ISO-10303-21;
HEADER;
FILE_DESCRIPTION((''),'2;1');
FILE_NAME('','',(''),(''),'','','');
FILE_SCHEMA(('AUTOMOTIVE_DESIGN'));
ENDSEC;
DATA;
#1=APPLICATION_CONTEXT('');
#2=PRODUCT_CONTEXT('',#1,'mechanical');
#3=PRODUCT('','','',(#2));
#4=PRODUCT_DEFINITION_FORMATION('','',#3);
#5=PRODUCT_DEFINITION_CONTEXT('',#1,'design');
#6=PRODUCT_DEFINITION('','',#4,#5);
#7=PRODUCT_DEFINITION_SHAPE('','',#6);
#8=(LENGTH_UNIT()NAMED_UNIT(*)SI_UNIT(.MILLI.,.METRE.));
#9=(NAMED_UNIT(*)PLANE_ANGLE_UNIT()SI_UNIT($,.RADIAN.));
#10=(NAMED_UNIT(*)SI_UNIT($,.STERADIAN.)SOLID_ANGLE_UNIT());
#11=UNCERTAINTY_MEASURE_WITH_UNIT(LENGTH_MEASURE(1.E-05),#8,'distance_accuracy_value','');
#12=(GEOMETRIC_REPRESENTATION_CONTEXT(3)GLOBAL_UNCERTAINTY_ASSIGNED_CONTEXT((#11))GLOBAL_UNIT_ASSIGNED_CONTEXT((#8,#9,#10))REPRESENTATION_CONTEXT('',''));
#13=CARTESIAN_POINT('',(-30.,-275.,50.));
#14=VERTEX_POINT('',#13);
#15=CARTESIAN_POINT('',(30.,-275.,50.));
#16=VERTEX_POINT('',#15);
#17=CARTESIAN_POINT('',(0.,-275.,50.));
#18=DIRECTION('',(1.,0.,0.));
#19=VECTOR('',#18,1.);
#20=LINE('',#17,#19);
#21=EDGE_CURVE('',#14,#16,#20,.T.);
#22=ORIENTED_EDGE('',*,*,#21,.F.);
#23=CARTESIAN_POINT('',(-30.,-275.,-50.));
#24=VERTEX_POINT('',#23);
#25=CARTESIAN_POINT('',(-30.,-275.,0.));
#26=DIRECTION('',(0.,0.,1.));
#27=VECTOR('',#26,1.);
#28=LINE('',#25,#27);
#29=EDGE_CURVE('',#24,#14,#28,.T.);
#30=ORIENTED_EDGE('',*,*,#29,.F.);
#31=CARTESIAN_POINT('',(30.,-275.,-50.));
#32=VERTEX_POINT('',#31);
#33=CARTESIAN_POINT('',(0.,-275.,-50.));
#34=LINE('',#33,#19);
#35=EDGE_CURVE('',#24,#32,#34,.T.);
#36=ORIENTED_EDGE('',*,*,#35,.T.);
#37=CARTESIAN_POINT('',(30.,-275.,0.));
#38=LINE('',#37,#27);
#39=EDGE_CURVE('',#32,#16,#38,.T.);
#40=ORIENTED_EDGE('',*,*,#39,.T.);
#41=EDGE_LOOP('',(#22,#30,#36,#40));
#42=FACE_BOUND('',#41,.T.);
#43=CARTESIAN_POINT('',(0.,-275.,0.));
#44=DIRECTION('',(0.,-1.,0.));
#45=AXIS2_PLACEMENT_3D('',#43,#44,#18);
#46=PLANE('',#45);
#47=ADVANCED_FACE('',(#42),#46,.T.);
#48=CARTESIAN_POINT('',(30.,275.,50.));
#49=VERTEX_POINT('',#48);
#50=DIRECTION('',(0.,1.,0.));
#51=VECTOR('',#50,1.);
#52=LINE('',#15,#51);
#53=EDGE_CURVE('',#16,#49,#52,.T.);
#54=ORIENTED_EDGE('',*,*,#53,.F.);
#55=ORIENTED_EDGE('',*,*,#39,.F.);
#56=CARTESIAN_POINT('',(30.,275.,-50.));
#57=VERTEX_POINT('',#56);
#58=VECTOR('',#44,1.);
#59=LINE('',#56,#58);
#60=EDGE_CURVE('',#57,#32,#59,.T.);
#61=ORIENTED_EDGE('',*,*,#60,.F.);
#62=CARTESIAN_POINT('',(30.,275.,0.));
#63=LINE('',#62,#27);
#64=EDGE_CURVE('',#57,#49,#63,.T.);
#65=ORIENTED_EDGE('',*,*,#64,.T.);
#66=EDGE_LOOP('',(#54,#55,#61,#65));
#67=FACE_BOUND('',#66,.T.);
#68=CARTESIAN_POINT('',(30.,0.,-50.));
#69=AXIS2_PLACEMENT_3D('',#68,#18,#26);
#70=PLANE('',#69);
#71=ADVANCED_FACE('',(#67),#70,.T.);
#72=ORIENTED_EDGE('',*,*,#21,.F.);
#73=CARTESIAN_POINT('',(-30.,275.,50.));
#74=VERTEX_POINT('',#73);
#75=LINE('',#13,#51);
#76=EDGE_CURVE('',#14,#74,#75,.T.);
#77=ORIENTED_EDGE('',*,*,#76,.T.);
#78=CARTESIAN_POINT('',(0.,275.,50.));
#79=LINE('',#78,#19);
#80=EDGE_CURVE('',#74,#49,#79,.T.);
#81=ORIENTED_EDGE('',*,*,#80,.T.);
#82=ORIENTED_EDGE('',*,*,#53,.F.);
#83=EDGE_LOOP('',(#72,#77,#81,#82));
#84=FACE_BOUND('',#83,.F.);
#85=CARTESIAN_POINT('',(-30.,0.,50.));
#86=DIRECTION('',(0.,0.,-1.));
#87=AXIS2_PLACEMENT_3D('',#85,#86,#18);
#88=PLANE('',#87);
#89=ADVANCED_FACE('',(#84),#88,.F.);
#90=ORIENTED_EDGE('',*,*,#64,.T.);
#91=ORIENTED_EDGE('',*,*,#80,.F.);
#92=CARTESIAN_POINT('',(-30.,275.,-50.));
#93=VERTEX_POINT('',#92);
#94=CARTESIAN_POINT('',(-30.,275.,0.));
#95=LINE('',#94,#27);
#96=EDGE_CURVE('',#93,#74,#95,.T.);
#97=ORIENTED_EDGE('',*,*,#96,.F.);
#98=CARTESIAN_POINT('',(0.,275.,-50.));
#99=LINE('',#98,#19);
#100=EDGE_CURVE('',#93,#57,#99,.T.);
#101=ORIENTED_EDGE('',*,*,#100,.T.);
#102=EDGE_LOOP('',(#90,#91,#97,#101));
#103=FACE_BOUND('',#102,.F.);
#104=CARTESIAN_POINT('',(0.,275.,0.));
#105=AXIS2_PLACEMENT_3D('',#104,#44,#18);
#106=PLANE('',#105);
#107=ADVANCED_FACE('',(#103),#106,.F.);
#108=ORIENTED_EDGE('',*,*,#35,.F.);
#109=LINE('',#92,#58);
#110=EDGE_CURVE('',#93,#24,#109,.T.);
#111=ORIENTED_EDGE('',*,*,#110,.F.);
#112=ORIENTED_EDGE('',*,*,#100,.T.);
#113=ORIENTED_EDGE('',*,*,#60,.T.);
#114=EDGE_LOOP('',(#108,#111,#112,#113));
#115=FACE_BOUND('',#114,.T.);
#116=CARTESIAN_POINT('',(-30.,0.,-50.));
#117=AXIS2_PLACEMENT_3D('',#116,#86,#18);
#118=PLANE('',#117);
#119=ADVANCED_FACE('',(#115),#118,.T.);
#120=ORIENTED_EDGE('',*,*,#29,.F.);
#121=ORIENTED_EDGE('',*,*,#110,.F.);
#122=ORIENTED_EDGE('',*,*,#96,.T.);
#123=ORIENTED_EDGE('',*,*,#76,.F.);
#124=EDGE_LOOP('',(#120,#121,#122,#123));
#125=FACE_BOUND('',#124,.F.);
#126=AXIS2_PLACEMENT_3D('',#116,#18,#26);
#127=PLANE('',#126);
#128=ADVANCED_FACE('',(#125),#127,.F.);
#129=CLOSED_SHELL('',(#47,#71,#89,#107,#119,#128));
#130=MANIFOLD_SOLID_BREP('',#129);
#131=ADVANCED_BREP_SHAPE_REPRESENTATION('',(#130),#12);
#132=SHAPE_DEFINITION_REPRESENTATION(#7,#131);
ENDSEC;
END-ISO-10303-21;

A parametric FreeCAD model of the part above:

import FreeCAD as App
import Part
import Sketcher
from FreeCAD import Vector
Q = App.Units.Quantity

doc = App.newDocument("Part")
params = doc.addObject("Spreadsheet::Sheet", "Params")
for row, (alias, value) in enumerate([
    ("sketch1_width", "60 mm"),
    ("sketch1_height", "100 mm"),
    ("pad1_length", "550 mm"),
], start=1):
    params.set(f"A{row}", alias)
    params.set(f"B{row}", "=" + value)
    params.setAlias(f"B{row}", alias)

body = doc.addObject("PartDesign::Body", "Body")

# Sketch on XZ plane
sketch1 = body.newObject("Sketcher::SketchObject", "Sketch")
sketch1.AttachmentSupport = (doc.getObject("XZ_Plane"), [""])
sketch1.MapMode = "FlatFace"
sketch1.addGeometry([
    Part.LineSegment(Vector(-30, 50, 0), Vector(-30, -50, 0)),
    Part.LineSegment(Vector(-30, -50, 0), Vector(30, -50, 0)),
    Part.LineSegment(Vector(30, -50, 0), Vector(30, 50, 0)),
    Part.LineSegment(Vector(30, 50, 0), Vector(-30, 50, 0)),
], False)
sketch1.addConstraint([
    Sketcher.Constraint("Coincident", 0, 2, 1, 1),
    Sketcher.Constraint("Coincident", 1, 2, 2, 1),
    Sketcher.Constraint("Coincident", 2, 2, 3, 1),
    Sketcher.Constraint("Coincident", 3, 2, 0, 1),
    Sketcher.Constraint("Vertical", 0),
    Sketcher.Constraint("Horizontal", 1),
    Sketcher.Constraint("Vertical", 2),
    Sketcher.Constraint("Horizontal", 3),
    Sketcher.Constraint("Symmetric", 0, 2, 2, 2, -1, 1),
    Sketcher.Constraint("DistanceX", 1, 1, 1, 2, Q("60 mm")),
    Sketcher.Constraint("DistanceY", 0, 2, 0, 1, Q("100 mm")),
])
sketch1.setExpression("Constraints[9]", "Params.sketch1_width")
sketch1.setExpression("Constraints[10]", "Params.sketch1_height")
pad1 = body.newObject("PartDesign::Pad", "Pad")
pad1.Profile = sketch1
pad1.setExpression("Length", "Params.pad1_length")
pad1.Midplane = True

doc.recompute()
